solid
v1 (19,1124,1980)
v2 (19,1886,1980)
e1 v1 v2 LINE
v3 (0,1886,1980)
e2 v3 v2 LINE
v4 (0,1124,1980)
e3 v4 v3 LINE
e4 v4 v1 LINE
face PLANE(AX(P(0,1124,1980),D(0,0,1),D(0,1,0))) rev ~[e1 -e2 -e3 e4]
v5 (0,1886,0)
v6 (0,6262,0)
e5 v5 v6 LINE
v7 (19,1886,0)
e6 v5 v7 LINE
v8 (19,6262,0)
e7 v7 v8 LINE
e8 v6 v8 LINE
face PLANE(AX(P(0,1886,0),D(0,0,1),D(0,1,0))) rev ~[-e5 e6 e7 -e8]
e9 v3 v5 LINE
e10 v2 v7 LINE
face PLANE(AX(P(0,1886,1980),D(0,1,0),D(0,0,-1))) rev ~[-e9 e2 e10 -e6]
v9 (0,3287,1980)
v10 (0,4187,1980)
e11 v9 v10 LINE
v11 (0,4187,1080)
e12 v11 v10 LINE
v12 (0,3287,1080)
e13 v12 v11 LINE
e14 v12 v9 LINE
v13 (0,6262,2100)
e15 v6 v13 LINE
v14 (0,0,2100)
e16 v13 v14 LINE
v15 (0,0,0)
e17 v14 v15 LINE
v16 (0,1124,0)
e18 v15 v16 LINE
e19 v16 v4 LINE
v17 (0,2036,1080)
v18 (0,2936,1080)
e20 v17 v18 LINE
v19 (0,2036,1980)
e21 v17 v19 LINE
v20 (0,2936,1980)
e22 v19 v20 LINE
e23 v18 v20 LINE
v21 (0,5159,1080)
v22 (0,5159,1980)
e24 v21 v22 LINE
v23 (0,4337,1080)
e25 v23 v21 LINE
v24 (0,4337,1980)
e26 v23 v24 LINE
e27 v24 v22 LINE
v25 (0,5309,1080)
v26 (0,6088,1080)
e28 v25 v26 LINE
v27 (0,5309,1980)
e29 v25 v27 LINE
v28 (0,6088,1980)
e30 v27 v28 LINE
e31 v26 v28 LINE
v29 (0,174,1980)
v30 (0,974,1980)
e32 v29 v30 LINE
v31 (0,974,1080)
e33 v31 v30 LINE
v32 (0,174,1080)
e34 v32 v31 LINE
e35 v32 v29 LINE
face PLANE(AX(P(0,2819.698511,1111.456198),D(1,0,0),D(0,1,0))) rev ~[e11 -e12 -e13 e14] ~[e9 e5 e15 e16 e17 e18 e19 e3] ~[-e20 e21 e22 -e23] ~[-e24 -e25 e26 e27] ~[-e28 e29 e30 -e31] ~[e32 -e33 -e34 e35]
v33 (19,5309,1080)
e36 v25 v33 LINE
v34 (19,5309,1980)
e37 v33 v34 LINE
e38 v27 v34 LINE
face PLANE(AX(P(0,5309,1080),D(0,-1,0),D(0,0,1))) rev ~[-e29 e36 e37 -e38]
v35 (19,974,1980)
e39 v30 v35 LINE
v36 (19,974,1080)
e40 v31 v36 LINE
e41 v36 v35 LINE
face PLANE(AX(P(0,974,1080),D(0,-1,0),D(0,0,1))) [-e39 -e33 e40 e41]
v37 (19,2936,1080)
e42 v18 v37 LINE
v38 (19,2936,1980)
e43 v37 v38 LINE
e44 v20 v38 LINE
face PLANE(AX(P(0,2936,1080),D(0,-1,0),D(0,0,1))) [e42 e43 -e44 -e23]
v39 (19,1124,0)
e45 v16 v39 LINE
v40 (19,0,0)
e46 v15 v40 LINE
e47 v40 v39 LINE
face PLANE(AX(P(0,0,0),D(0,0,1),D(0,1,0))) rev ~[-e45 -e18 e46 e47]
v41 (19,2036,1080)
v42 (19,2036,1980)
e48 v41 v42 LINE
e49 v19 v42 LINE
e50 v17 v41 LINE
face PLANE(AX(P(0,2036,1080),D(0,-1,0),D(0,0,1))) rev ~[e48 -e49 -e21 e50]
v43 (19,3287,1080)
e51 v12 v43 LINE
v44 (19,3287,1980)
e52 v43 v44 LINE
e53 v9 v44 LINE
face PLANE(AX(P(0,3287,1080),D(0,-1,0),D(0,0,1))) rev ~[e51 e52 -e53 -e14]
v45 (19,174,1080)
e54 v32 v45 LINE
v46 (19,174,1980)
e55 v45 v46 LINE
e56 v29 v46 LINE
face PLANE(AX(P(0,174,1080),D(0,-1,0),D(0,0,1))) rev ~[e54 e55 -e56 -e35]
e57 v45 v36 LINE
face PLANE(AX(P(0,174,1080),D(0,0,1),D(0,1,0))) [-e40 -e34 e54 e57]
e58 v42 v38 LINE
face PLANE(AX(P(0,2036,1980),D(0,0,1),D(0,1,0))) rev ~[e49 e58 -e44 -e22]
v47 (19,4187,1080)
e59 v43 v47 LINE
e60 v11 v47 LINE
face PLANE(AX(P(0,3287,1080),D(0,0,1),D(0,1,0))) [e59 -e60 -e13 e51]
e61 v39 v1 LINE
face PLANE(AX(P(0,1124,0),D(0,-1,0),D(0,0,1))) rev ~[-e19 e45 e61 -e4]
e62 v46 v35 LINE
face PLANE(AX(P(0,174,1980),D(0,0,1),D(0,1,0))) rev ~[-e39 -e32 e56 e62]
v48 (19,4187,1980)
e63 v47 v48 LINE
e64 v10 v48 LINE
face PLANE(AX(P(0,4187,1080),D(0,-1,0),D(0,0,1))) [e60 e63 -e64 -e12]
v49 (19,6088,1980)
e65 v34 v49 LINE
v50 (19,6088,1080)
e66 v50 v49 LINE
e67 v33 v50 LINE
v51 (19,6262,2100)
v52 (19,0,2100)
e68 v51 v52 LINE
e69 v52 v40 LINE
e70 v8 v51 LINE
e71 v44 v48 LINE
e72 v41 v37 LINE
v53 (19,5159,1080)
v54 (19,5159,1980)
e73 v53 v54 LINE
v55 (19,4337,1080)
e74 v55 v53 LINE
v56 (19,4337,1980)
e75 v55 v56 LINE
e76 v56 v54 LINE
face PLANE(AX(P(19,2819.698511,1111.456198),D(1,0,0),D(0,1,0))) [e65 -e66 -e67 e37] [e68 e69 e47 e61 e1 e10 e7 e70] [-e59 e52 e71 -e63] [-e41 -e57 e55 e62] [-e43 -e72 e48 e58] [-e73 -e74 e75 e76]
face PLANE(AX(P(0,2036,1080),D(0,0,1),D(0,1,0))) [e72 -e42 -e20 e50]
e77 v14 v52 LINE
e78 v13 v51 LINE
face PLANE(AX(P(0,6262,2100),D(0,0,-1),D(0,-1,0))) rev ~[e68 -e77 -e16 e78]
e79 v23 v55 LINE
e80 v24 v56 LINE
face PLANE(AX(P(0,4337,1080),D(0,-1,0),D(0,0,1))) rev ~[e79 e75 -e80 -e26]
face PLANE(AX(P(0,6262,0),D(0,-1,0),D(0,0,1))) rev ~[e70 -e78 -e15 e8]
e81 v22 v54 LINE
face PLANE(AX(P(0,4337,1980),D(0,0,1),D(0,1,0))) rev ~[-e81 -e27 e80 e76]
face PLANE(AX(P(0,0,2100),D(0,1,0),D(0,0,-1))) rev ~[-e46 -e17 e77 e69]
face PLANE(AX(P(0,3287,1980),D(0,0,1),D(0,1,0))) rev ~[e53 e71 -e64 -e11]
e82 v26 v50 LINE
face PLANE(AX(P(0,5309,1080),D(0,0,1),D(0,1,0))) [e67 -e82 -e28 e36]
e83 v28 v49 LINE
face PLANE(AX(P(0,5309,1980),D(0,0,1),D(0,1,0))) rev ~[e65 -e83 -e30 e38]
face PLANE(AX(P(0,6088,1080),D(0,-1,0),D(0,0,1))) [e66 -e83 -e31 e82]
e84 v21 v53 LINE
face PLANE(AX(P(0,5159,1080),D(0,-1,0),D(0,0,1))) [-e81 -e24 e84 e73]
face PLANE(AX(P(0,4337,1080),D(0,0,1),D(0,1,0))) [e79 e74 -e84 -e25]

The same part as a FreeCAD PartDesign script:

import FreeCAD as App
import Part
import Sketcher
Q = App.Units.Quantity

doc = App.newDocument("Part")
params = doc.addObject("Spreadsheet::Sheet", "Params")
for row, (alias, value) in enumerate([
    ("sketch1_width", "1124 mm"),
    ("sketch1_width2", "762 mm"),
    ("sketch1_width3", "4376 mm"),
    ("sketch1_width4", "800 mm"),
    ("sketch1_width5", "900 mm"),
    ("pad1_length", "19 mm"),
], start=1):
    params.set(f"A{row}", alias)
    params.set(f"B{row}", "=" + value)
    params.setAlias(f"B{row}", alias)

body = doc.addObject("PartDesign::Body", "Body")

# Sketch on YZ plane
sketch1 = doc.addObject("Sketcher::SketchObject", "Sketch")
body.addObject(sketch1)
sketch1.AttachmentSupport = (doc.YZ_Plane, [""])
sketch1.MapMode = "FlatFace"
sketch1.addGeometry(Part.LineSegment(App.Vector(0, 2100, 0), App.Vector(0, 0, 0)), False)
sketch1.addGeometry(Part.LineSegment(App.Vector(0, 0, 0), App.Vector(1124, 0, 0)), False)
sketch1.addGeometry(Part.LineSegment(App.Vector(1124, 0, 0), App.Vector(1124, 1980, 0)), False)
sketch1.addGeometry(Part.LineSegment(App.Vector(1124, 1980, 0), App.Vector(1886, 1980, 0)), False)
sketch1.addGeometry(Part.LineSegment(App.Vector(1886, 1980, 0), App.Vector(1886, 0, 0)), False)
sketch1.addGeometry(Part.LineSegment(App.Vector(1886, 0, 0), App.Vector(6262, 0, 0)), False)
sketch1.addGeometry(Part.LineSegment(App.Vector(6262, 0, 0), App.Vector(6262, 2100, 0)), False)
sketch1.addGeometry(Part.LineSegment(App.Vector(6262, 2100, 0), App.Vector(0, 2100, 0)), False)
sketch1.addGeometry(Part.LineSegment(App.Vector(974, 1080, 0), App.Vector(174, 1080, 0)), False)
sketch1.addGeometry(Part.LineSegment(App.Vector(174, 1080, 0), App.Vector(174, 1980, 0)), False)
sketch1.addGeometry(Part.LineSegment(App.Vector(174, 1980, 0), App.Vector(974, 1980, 0)), False)
sketch1.addGeometry(Part.LineSegment(App.Vector(974, 1980, 0), App.Vector(974, 1080, 0)), False)
sketch1.addGeometry(Part.LineSegment(App.Vector(2936, 1080, 0), App.Vector(2036, 1080, 0)), False)
sketch1.addGeometry(Part.LineSegment(App.Vector(2036, 1080, 0), App.Vector(2036, 1980, 0)), False)
sketch1.addGeometry(Part.LineSegment(App.Vector(2036, 1980, 0), App.Vector(2936, 1980, 0)), False)
sketch1.addGeometry(Part.LineSegment(App.Vector(2936, 1980, 0), App.Vector(2936, 1080, 0)), False)
sketch1.addGeometry(Part.LineSegment(App.Vector(4187, 1080, 0), App.Vector(3287, 1080, 0)), False)
sketch1.addGeometry(Part.LineSegment(App.Vector(3287, 1080, 0), App.Vector(3287, 1980, 0)), False)
sketch1.addGeometry(Part.LineSegment(App.Vector(3287, 1980, 0), App.Vector(4187, 1980, 0)), False)
sketch1.addGeometry(Part.LineSegment(App.Vector(4187, 1980, 0), App.Vector(4187, 1080, 0)), False)
sketch1.addGeometry(Part.LineSegment(App.Vector(5159, 1080, 0), App.Vector(4337, 1080, 0)), False)
sketch1.addGeometry(Part.LineSegment(App.Vector(4337, 1080, 0), App.Vector(4337, 1980, 0)), False)
sketch1.addGeometry(Part.LineSegment(App.Vector(4337, 1980, 0), App.Vector(5159, 1980, 0)), False)
sketch1.addGeometry(Part.LineSegment(App.Vector(5159, 1980, 0), App.Vector(5159, 1080, 0)), False)
sketch1.addGeometry(Part.LineSegment(App.Vector(6088, 1080, 0), App.Vector(5309, 1080, 0)), False)
sketch1.addGeometry(Part.LineSegment(App.Vector(5309, 1080, 0), App.Vector(5309, 1980, 0)), False)
sketch1.addGeometry(Part.LineSegment(App.Vector(5309, 1980, 0), App.Vector(6088, 1980, 0)), False)
sketch1.addGeometry(Part.LineSegment(App.Vector(6088, 1980, 0), App.Vector(6088, 1080, 0)), False)
sketch1.addConstraint(Sketcher.Constraint("Coincident", 0, 2, 1, 1))
sketch1.addConstraint(Sketcher.Constraint("Coincident", 1, 2, 2, 1))
sketch1.addConstraint(Sketcher.Constraint("Coincident", 2, 2, 3, 1))
sketch1.addConstraint(Sketcher.Constraint("Coincident", 3, 2, 4, 1))
sketch1.addConstraint(Sketcher.Constraint("Coincident", 4, 2, 5, 1))
sketch1.addConstraint(Sketcher.Constraint("Coincident", 5, 2, 6, 1))
sketch1.addConstraint(Sketcher.Constraint("Coincident", 6, 2, 7, 1))
sketch1.addConstraint(Sketcher.Constraint("Coincident", 7, 2, 0, 1))
sketch1.addConstraint(Sketcher.Constraint("Coincident", 8, 2, 9, 1))
sketch1.addConstraint(Sketcher.Constraint("Coincident", 9, 2, 10, 1))
sketch1.addConstraint(Sketcher.Constraint("Coincident", 10, 2, 11, 1))
sketch1.addConstraint(Sketcher.Constraint("Coincident", 11, 2, 8, 1))
sketch1.addConstraint(Sketcher.Constraint("Coincident", 12, 2, 13, 1))
sketch1.addConstraint(Sketcher.Constraint("Coincident", 13, 2, 14, 1))
sketch1.addConstraint(Sketcher.Constraint("Coincident", 14, 2, 15, 1))
sketch1.addConstraint(Sketcher.Constraint("Coincident", 15, 2, 12, 1))
sketch1.addConstraint(Sketcher.Constraint("Coincident", 16, 2, 17, 1))
sketch1.addConstraint(Sketcher.Constraint("Coincident", 17, 2, 18, 1))
sketch1.addConstraint(Sketcher.Constraint("Coincident", 18, 2, 19, 1))
sketch1.addConstraint(Sketcher.Constraint("Coincident", 19, 2, 16, 1))
sketch1.addConstraint(Sketcher.Constraint("Coincident", 20, 2, 21, 1))
sketch1.addConstraint(Sketcher.Constraint("Coincident", 21, 2, 22, 1))
sketch1.addConstraint(Sketcher.Constraint("Coincident", 22, 2, 23, 1))
sketch1.addConstraint(Sketcher.Constraint("Coincident", 23, 2, 20, 1))
sketch1.addConstraint(Sketcher.Constraint("Coincident", 24, 2, 25, 1))
sketch1.addConstraint(Sketcher.Constraint("Coincident", 25, 2, 26, 1))
sketch1.addConstraint(Sketcher.Constraint("Coincident", 26, 2, 27, 1))
sketch1.addConstraint(Sketcher.Constraint("Coincident", 27, 2, 24, 1))
sketch1.addConstraint(Sketcher.Constraint("Vertical", 0))
sketch1.addConstraint(Sketcher.Constraint("Horizontal", 1))
sketch1.addConstraint(Sketcher.Constraint("Vertical", 2))
sketch1.addConstraint(Sketcher.Constraint("Horizontal", 3))
sketch1.addConstraint(Sketcher.Constraint("Vertical", 4))
sketch1.addConstraint(Sketcher.Constraint("Horizontal", 5))
sketch1.addConstraint(Sketcher.Constraint("Vertical", 6))
sketch1.addConstraint(Sketcher.Constraint("Horizontal", 7))
sketch1.addConstraint(Sketcher.Constraint("Horizontal", 8))
sketch1.addConstraint(Sketcher.Constraint("Vertical", 9))
sketch1.addConstraint(Sketcher.Constraint("Horizontal", 10))
sketch1.addConstraint(Sketcher.Constraint("Vertical", 11))
sketch1.addConstraint(Sketcher.Constraint("Horizontal", 12))
sketch1.addConstraint(Sketcher.Constraint("Vertical", 13))
sketch1.addConstraint(Sketcher.Constraint("Horizontal", 14))
sketch1.addConstraint(Sketcher.Constraint("Vertical", 15))
sketch1.addConstraint(Sketcher.Constraint("Horizontal", 16))
sketch1.addConstraint(Sketcher.Constraint("Vertical", 17))
sketch1.addConstraint(Sketcher.Constraint("Horizontal", 18))
sketch1.addConstraint(Sketcher.Constraint("Vertical", 19))
sketch1.addConstraint(Sketcher.Constraint("Horizontal", 20))
sketch1.addConstraint(Sketcher.Constraint("Vertical", 21))
sketch1.addConstraint(Sketcher.Constraint("Horizontal", 22))
sketch1.addConstraint(Sketcher.Constraint("Vertical", 23))
sketch1.addConstraint(Sketcher.Constraint("Horizontal", 24))
sketch1.addConstraint(Sketcher.Constraint("Vertical", 25))
sketch1.addConstraint(Sketcher.Constraint("Horizontal", 26))
sketch1.addConstraint(Sketcher.Constraint("Vertical", 27))
sketch1.addConstraint(Sketcher.Constraint("Coincident", 0, 2, -1, 1))
sketch1.addConstraint(Sketcher.Constraint("PointOnObject", 4, 2, -1))
sketch1.addConstraint(Sketcher.Constraint("Horizontal", 3, 2, 9, 2))
sketch1.addConstraint(Sketcher.Constraint("Horizontal", 11, 2, 12, 2))
sketch1.addConstraint(Sketcher.Constraint("Horizontal", 10, 2, 13, 2))
sketch1.addConstraint(Sketcher.Constraint("Horizontal", 15, 2, 16, 2))
sketch1.addConstraint(Sketcher.Constraint("Horizontal", 14, 2, 17, 2))
sketch1.addConstraint(Sketcher.Constraint("Horizontal", 19, 2, 20, 2))
sketch1.addConstraint(Sketcher.Constraint("Horizontal", 18, 2, 21, 2))
sketch1.addConstraint(Sketcher.Constraint("Horizontal", 23, 2, 24, 2))
sketch1.addConstraint(Sketcher.Constraint("Horizontal", 22, 2, 25, 2))
sketch1.addConstraint(Sketcher.Constraint("Equal", 14, 16))
sketch1.addConstraint(Sketcher.Constraint("Equal", 18, 9))
sketch1.addConstraint(Sketcher.Constraint("DistanceX", 1, 1, 1, 2, Q("1124 mm")))
sketch1.addConstraint(Sketcher.Constraint("DistanceX", 3, 1, 3, 2, Q("762 mm")))
sketch1.addConstraint(Sketcher.Constraint("DistanceX", 5, 1, 5, 2, Q("4376 mm")))
sketch1.addConstraint(Sketcher.Constraint("DistanceX", 8, 2, 8, 1, Q("800 mm")))
sketch1.addConstraint(Sketcher.Constraint("DistanceX", 12, 2, 12, 1, Q("900 mm")))
sketch1.addConstraint(Sketcher.Constraint("DistanceX", 20, 2, 20, 1, Q("822 mm")))
sketch1.addConstraint(Sketcher.Constraint("DistanceX", 24, 2, 24, 1, Q("779 mm")))
sketch1.addConstraint(Sketcher.Constraint("DistanceY", 0, 2, 0, 1, Q("2100 mm")))
sketch1.addConstraint(Sketcher.Constraint("DistanceY", 2, 1, 2, 2, Q("1980 mm")))
sketch1.addConstraint(Sketcher.Constraint("DistanceX", -1, 1, 8, 2, Q("174 mm")))
sketch1.addConstraint(Sketcher.Constraint("DistanceX", -1, 1, 12, 2, Q("2036 mm")))
sketch1.addConstraint(Sketcher.Constraint("DistanceX", -1, 1, 16, 2, Q("3287 mm")))
sketch1.addConstraint(Sketcher.Constraint("DistanceX", -1, 1, 20, 2, Q("4337 mm")))
sketch1.addConstraint(Sketcher.Constraint("DistanceX", -1, 1, 24, 2, Q("5309 mm")))
sketch1.setExpression("Constraints[69]", "Params.sketch1_width")
sketch1.setExpression("Constraints[70]", "Params.sketch1_width2")
sketch1.setExpression("Constraints[71]", "Params.sketch1_width3")
sketch1.setExpression("Constraints[72]", "Params.sketch1_width4")
sketch1.setExpression("Constraints[73]", "Params.sketch1_width5")
pad1 = doc.addObject("PartDesign::Pad", "Pad")
body.addObject(pad1)
pad1.Profile = sketch1
pad1.setExpression("Length", "Params.pad1_length")

doc.recompute()
